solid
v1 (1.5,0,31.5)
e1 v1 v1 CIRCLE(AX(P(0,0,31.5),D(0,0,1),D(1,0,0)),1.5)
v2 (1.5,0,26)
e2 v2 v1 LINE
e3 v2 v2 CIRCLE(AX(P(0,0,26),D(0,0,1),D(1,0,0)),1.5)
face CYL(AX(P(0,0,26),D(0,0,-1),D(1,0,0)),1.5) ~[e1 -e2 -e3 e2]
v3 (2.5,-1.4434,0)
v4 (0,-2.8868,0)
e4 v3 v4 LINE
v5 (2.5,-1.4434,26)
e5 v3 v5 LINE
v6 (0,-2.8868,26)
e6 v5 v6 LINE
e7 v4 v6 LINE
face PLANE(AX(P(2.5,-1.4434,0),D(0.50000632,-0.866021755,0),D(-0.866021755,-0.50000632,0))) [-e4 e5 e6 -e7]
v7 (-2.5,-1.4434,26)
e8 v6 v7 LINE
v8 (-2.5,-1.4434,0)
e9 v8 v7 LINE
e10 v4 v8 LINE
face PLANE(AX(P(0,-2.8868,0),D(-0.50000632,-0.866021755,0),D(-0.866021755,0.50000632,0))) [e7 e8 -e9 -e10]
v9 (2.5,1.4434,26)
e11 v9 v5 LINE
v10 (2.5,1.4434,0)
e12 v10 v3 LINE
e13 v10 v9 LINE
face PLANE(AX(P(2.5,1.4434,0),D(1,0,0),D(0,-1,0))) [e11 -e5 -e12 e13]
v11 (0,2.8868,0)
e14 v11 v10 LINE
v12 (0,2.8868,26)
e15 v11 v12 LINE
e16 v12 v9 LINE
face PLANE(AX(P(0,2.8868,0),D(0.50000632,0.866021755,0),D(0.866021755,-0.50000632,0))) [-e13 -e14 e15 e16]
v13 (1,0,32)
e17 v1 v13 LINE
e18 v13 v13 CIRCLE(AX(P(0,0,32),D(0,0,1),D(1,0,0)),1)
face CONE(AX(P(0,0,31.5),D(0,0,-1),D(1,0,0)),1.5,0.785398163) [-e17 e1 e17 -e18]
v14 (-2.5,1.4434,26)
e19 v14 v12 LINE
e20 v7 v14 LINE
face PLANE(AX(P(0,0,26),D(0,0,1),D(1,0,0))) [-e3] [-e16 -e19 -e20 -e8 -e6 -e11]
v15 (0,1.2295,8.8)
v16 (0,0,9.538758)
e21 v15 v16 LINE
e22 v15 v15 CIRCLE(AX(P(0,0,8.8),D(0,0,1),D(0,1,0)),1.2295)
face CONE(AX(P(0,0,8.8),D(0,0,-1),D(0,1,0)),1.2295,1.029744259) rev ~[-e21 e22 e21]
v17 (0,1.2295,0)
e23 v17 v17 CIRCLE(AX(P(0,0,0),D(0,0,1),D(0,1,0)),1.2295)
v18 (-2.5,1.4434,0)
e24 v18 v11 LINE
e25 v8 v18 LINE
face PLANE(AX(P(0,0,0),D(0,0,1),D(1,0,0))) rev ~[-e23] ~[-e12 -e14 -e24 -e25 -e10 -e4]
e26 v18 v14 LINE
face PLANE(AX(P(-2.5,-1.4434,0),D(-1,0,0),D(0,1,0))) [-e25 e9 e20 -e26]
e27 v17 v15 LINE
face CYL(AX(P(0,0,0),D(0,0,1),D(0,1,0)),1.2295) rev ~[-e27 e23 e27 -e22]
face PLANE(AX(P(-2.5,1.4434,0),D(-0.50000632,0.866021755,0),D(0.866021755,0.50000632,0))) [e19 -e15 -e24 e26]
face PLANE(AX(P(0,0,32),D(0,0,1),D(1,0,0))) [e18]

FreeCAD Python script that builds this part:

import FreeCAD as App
import Part
import Sketcher

V = App.Vector
Q = App.Units.Quantity


def edges_at(feature, points):
    """Names of the edges that pass closest to the given points."""
    edges = feature.Shape.Edges
    near = lambda p: min(range(len(edges)), key=lambda i: edges[i].distToShape(Part.Vertex(*p))[0])
    return sorted({f"Edge{near(p) + 1}" for p in points})


def add_polygon(sketch, points):
    """Adds a closed chain of lines whose ends are joined by coincident constraints."""
    first, n = sketch.GeometryCount, len(points)
    for a, b in zip(points, points[1:] + points[:1]):
        sketch.addGeometry(Part.LineSegment(App.Vector(*a, 0), App.Vector(*b, 0)), False)
    for i in range(n):
        sketch.addConstraint(Sketcher.Constraint("Coincident", first + i, 2, first + (i + 1) % n, 1))

doc = App.newDocument("Part")
body = doc.addObject("PartDesign::Body", "Body")

sketch1 = body.newObject("Sketcher::SketchObject", "Sketch")
sketch1.AttachmentSupport = (doc.getObject("XY_Plane"), [""])
sketch1.MapMode = "FlatFace"
add_polygon(sketch1, [(2.5, -1.4), (2.5, 1.4), (0, 2.9), (-2.5, 1.4), (-2.5, -1.4), (0, -2.9)])
sketch1.addConstraint(Sketcher.Constraint("Vertical", 0))
sketch1.addConstraint(Sketcher.Constraint("Vertical", 3))
sketch1.addConstraint(Sketcher.Constraint("Symmetric", 0, 2, 3, 2, -1, 1))
sketch1.addConstraint(Sketcher.Constraint("Symmetric", 1, 2, 4, 2, -1, 1))
sketch1.addConstraint(Sketcher.Constraint("PointOnObject", 1, 2, -2))
sketch1.addConstraint(Sketcher.Constraint("Parallel", 2, 5))
sketch1.addConstraint(Sketcher.Constraint("Horizontal", 0, 2, 2, 2))
sketch1.addConstraint(Sketcher.Constraint("DistanceX", 2, 2, 0, 2, 5.0))
sketch1.addConstraint(Sketcher.Constraint("Angle", 1, Q("149.9996 deg")))
sketch1.addConstraint(Sketcher.Constraint("DistanceY", 0, 1, 0, 2, 2.8868))
pad1 = body.newObject("PartDesign::Pad", "Pad")
pad1.Profile = sketch1
pad1.Length = 26

sketch2 = body.newObject("Sketcher::SketchObject", "Sketch001")
sketch2.AttachmentSupport = (doc.getObject("XY_Plane"), [""])
sketch2.MapMode = "FlatFace"
sketch2.AttachmentOffset = App.Placement(V(0, 0, 26), App.Rotation())
sketch2.addGeometry(Part.Circle(V(0, 0, 0), V(0, 0, 1), 1.5), False)
sketch2.addConstraint(Sketcher.Constraint("Coincident", 0, 3, -1, 1))
sketch2.addConstraint(Sketcher.Constraint("Diameter", 0, 3.0))
pad2 = body.newObject("PartDesign::Pad", "Pad001")
pad2.Profile = sketch2
pad2.Length = 6
doc.recompute()

chamfer = body.newObject("PartDesign::Chamfer", "Chamfer")
chamfer.Base = (pad2, edges_at(pad2, [(-1.5, 0, 32)]))
chamfer.Size = 0.5

sketch3 = body.newObject("Sketcher::SketchObject", "Sketch002")
sketch3.AttachmentSupport = (doc.getObject("XY_Plane"), [""])
sketch3.MapMode = "FlatFace"
sketch3.addGeometry(Part.Circle(V(0, 0, 0), V(0, 0, 1), 1.2), False)
sketch3.addConstraint(Sketcher.Constraint("Coincident", 0, 3, -1, 1))
sketch3.addConstraint(Sketcher.Constraint("Diameter", 0, 2.459))
doc.recompute()
hole = body.newObject("PartDesign::Hole", "Hole")
hole.Profile = sketch3
hole.ThreadType = "None"
hole.Diameter = 2.459
hole.DepthType = "Dimension"
hole.Depth = 8.8
hole.DrillPoint = "Angled"
hole.DrillPointAngle = 118
hole.Reversed = True

doc.recompute()
